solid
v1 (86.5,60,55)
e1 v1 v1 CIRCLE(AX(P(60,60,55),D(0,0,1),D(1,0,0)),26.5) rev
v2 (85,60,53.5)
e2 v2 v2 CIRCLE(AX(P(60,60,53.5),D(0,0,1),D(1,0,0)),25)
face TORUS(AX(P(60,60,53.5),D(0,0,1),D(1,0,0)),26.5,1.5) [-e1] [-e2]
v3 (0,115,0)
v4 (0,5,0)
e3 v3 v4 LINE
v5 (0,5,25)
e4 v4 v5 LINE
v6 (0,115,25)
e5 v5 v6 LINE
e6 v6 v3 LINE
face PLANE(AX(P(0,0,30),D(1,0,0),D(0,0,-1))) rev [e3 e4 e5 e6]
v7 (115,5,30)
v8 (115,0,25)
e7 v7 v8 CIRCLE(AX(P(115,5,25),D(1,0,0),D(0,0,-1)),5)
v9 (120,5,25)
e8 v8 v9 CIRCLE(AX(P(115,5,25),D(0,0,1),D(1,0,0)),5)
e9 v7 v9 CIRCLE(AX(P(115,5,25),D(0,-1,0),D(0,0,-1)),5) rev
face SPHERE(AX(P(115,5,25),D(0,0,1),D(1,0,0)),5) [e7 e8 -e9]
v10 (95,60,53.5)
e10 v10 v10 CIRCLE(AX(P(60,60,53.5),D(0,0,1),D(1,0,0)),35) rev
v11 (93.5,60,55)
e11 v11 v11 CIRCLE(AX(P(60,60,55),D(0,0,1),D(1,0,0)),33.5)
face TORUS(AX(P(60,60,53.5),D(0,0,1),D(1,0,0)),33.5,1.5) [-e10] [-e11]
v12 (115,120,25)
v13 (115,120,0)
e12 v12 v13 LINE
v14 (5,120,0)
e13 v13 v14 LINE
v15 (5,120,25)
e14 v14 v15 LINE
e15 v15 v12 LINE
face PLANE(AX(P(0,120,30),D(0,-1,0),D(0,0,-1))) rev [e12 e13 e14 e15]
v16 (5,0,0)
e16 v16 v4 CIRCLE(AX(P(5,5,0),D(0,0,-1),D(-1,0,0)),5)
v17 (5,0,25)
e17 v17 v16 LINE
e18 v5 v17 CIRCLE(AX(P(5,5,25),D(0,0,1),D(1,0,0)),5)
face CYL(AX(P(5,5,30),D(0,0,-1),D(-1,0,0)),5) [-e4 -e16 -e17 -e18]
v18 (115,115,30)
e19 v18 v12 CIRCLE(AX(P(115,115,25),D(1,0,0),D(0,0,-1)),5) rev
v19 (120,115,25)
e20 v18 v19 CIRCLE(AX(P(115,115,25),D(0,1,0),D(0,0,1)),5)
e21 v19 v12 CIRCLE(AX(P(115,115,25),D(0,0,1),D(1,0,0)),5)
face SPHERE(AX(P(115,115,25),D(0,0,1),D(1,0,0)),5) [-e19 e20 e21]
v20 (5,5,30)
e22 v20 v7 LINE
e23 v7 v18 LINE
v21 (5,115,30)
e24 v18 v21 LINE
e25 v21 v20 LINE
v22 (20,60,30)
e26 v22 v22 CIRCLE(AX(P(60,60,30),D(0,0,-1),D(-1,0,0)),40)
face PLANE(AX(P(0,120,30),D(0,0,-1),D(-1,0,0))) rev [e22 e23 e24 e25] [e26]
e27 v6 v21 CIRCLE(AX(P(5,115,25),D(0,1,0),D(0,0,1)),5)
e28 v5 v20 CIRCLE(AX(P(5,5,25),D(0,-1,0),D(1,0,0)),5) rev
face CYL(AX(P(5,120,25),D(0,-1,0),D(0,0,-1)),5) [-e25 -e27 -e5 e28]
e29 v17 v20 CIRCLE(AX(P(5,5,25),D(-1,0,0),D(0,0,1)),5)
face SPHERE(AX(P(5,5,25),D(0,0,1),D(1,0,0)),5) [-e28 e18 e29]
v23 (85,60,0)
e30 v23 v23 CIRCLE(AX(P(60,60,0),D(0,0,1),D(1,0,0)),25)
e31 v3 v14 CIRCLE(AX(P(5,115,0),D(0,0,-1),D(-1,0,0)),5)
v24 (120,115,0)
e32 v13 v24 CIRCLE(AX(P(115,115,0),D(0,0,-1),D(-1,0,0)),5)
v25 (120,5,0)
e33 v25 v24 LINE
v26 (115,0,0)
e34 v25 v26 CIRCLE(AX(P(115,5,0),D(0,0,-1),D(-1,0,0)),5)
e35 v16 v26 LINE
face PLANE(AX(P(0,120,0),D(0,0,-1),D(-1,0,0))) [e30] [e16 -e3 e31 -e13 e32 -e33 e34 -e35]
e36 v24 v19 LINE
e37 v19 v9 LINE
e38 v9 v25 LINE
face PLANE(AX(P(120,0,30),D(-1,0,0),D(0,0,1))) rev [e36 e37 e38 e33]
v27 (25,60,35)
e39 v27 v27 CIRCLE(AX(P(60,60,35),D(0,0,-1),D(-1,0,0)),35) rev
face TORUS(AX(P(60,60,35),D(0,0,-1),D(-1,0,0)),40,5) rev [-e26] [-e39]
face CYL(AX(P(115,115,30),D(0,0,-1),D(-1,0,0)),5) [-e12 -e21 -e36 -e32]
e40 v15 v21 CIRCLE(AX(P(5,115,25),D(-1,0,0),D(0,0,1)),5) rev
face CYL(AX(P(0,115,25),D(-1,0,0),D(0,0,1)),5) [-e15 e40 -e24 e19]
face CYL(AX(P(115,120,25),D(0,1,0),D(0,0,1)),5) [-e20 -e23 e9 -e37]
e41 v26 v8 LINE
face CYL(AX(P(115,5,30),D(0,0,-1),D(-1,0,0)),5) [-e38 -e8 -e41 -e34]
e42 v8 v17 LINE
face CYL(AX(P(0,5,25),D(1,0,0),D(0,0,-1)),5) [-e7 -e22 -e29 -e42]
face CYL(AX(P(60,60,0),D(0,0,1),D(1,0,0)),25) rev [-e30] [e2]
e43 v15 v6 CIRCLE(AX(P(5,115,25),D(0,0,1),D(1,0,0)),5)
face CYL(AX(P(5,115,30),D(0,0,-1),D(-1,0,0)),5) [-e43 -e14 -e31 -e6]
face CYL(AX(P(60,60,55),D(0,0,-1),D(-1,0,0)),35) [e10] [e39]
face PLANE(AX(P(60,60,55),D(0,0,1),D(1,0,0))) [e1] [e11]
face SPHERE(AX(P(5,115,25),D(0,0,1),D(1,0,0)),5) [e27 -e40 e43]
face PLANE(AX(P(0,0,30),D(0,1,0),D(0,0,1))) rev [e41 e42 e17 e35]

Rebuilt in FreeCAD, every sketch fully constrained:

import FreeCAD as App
import Part
import Sketcher


def edges_at(feature, points):
    """Names of the edges that pass closest to the given points."""
    edges = feature.Shape.Edges
    near = lambda p: min(range(len(edges)), key=lambda i: edges[i].distToShape(Part.Vertex(*p))[0])
    return sorted({f"Edge{near(p) + 1}" for p in points})


def add_polygon(sketch, points):
    """Adds a closed chain of lines whose ends are joined by coincident constraints."""
    first, n = sketch.GeometryCount, len(points)
    for a, b in zip(points, points[1:] + points[:1]):
        sketch.addGeometry(Part.LineSegment(App.Vector(*a, 0), App.Vector(*b, 0)), False)
    for i in range(n):
        sketch.addConstraint(Sketcher.Constraint("Coincident", first + i, 2, first + (i + 1) % n, 1))

doc = App.newDocument("Part")
body = doc.addObject("PartDesign::Body", "Body")

# Sketch on XY plane
sketch1 = body.newObject("Sketcher::SketchObject", "Sketch")
sketch1.AttachmentSupport = (doc.getObject("XY_Plane"), [""])
sketch1.MapMode = "FlatFace"
add_polygon(sketch1, [(0, 120), (0, 0), (120, 0), (120, 120)])  # lines 0-3
sketch1.addConstraint(Sketcher.Constraint("Vertical", 0))
sketch1.addConstraint(Sketcher.Constraint("Horizontal", 1))
sketch1.addConstraint(Sketcher.Constraint("Vertical", 2))
sketch1.addConstraint(Sketcher.Constraint("Horizontal", 3))
sketch1.addConstraint(Sketcher.Constraint("Coincident", 0, 2, -1, 1))
sketch1.addConstraint(Sketcher.Constraint("Equal", 3, 0))
sketch1.addConstraint(Sketcher.Constraint("DistanceX", 1, 1, 1, 2, 120.0))
pad1 = body.newObject("PartDesign::Pad", "Pad")
pad1.Profile = sketch1
pad1.Length = 30

# Sketch on XY plane
sketch2 = body.newObject("Sketcher::SketchObject", "Sketch001")
sketch2.AttachmentSupport = (doc.getObject("XY_Plane"), [""])
sketch2.MapMode = "FlatFace"
sketch2.AttachmentOffset = App.Placement(App.Vector(0, 0, 30), App.Rotation())
sketch2.addGeometry(Part.Circle(App.Vector(60, 60, 0), App.Vector(0, 0, 1), 35), False)
sketch2.addConstraint(Sketcher.Constraint("Diameter", 0, 70.0))
sketch2.addConstraint(Sketcher.Constraint("DistanceX", -1, 1, 0, 3, 60.0))
sketch2.addConstraint(Sketcher.Constraint("DistanceY", -1, 1, 0, 3, 60.0))
pad2 = body.newObject("PartDesign::Pad", "Pad001")
pad2.Profile = sketch2
pad2.Length = 25

# Sketch on XY plane
sketch3 = body.newObject("Sketcher::SketchObject", "Sketch002")
sketch3.AttachmentSupport = (doc.getObject("XY_Plane"), [""])
sketch3.MapMode = "FlatFace"
sketch3.AttachmentOffset = App.Placement(App.Vector(0, 0, 55), App.Rotation())
sketch3.addGeometry(Part.Circle(App.Vector(60, 60, 0), App.Vector(0, 0, 1), 25), False)
sketch3.addConstraint(Sketcher.Constraint("Diameter", 0, 50.0))
sketch3.addConstraint(Sketcher.Constraint("DistanceX", -1, 1, 0, 3, 60.0))
sketch3.addConstraint(Sketcher.Constraint("DistanceY", -1, 1, 0, 3, 60.0))
pocket1 = body.newObject("PartDesign::Pocket", "Pocket")
pocket1.Profile = sketch3
pocket1.Type = "ThroughAll"
doc.recompute()

fillet = body.newObject("PartDesign::Fillet", "Fillet")
fillet.Base = (pocket1, edges_at(pocket1, [
    (120, 60, 30),
    (60, 120, 30),
    (95, 60, 30),
    (0, 60, 30),
    (60, 0, 30),
    (0, 120, 15),
    (120, 120, 15),
    (120, 0, 15),
    (0, 0, 15),
]))
fillet.Radius = 5
doc.recompute()

fillet2 = body.newObject("PartDesign::Fillet", "Fillet001")
fillet2.Base = (fillet, edges_at(fillet, [(95, 60, 55), (35, 60, 55)]))
fillet2.Radius = 1.5

doc.recompute()
